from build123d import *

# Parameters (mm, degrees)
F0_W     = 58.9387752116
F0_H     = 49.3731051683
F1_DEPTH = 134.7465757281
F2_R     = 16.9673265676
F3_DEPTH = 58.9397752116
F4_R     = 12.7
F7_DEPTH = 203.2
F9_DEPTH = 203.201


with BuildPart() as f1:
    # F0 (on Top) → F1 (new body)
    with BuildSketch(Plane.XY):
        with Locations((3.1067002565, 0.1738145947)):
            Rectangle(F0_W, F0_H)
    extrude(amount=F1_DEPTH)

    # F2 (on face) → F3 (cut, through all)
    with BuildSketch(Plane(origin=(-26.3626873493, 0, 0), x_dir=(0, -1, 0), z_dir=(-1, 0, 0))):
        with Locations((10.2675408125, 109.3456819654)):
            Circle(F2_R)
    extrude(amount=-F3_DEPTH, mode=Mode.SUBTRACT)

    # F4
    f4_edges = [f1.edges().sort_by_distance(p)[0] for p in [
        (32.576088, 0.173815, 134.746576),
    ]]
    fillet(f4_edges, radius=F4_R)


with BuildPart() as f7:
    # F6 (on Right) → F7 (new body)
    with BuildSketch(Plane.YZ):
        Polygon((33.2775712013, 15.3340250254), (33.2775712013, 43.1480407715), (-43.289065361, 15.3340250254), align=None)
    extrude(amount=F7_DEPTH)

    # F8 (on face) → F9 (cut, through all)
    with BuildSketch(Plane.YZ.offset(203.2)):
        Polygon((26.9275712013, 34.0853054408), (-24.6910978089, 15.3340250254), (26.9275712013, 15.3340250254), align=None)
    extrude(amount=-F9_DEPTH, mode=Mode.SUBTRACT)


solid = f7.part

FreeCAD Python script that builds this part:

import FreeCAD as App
import Part
import Sketcher
from FreeCAD import Vector
Q = App.Units.Quantity


def edges_at(feature, points):
    """Names of the edges that pass closest to the given points."""
    edges = feature.Shape.Edges
    near = lambda p: min(range(len(edges)), key=lambda i: edges[i].distToShape(Part.Vertex(*p))[0])
    return sorted({f"Edge{near(p) + 1}" for p in points})


def add_polygon(sketch, points):
    """Adds a closed chain of lines whose ends are joined by coincident constraints."""
    first, n = sketch.GeometryCount, len(points)
    for a, b in zip(points, points[1:] + points[:1]):
        sketch.addGeometry(Part.LineSegment(App.Vector(*a, 0), App.Vector(*b, 0)), False)
    for i in range(n):
        sketch.addConstraint(Sketcher.Constraint("Coincident", first + i, 2, first + (i + 1) % n, 1))

doc = App.newDocument("Part")
body = doc.addObject("PartDesign::Body", "Body")

# Sketch on XY plane
sketch1 = doc.addObject("Sketcher::SketchObject", "Sketch")
body.addObject(sketch1)
sketch1.AttachmentSupport = (doc.XY_Plane, [""])
sketch1.MapMode = "FlatFace"
add_polygon(sketch1, [(-26.362687, 24.860367), (-26.362687, -24.512738), (32.576088, -24.512738), (32.576088, 24.860367)])  # lines 0-3
sketch1.addConstraint([
    Sketcher.Constraint("Vertical", 0),
    Sketcher.Constraint("Horizontal", 1),
    Sketcher.Constraint("Vertical", 2),
    Sketcher.Constraint("Horizontal", 3),
    Sketcher.Constraint("DistanceX", 1, 1, 1, 2, 58.938775),
    Sketcher.Constraint("DistanceY", 0, 2, 0, 1, 49.373105),
    Sketcher.Constraint("DistanceX", 0, 2, -1, 1, 26.362687),
    Sketcher.Constraint("DistanceY", 0, 2, -1, 1, 24.512738),
])
pad1 = doc.addObject("PartDesign::Pad", "Pad")
body.addObject(pad1)
pad1.Profile = sketch1
pad1.Length = 134.746576

# Sketch on YZ plane
sketch2 = doc.addObject("Sketcher::SketchObject", "Sketch001")
body.addObject(sketch2)
sketch2.AttachmentSupport = (doc.YZ_Plane, [""])
sketch2.MapMode = "FlatFace"
sketch2.AttachmentOffset = App.Placement(Vector(0, 0, -26.362687), App.Rotation())
sketch2.addGeometry(Part.Circle(Vector(-10.267541, 109.345682, 0), Vector(0, 0, 1), 16.967327), False)
sketch2.addConstraint([
    Sketcher.Constraint("Diameter", 0, 33.934653),
    Sketcher.Constraint("DistanceX", 0, 3, -1, 1, 10.267541),
    Sketcher.Constraint("DistanceY", -1, 1, 0, 3, 109.345682),
])
pocket1 = doc.addObject("PartDesign::Pocket", "Pocket")
body.addObject(pocket1)
pocket1.Profile = sketch2
pocket1.Type = "ThroughAll"
pocket1.Reversed = True
doc.recompute()

fillet = doc.addObject("PartDesign::Fillet", "Fillet")
body.addObject(fillet)
fillet.Base = (pocket1, edges_at(pocket1, [(32.576, 0.174, 134.747)]))
fillet.Radius = Q("0.5 in")
body2 = doc.addObject("PartDesign::Body", "Body001")

# Sketch on YZ plane
sketch3 = doc.addObject("Sketcher::SketchObject", "Sketch002")
body2.addObject(sketch3)
sketch3.AttachmentSupport = (doc.getObject("YZ_Plane001"), [""])
sketch3.MapMode = "FlatFace"
add_polygon(sketch3, [(33.277571, 15.334025), (33.277571, 43.148041), (-43.289065, 15.334025)])  # lines 0-2
sketch3.addConstraint([
    Sketcher.Constraint("Vertical", 0),
    Sketcher.Constraint("Horizontal", 2),
    Sketcher.Constraint("DistanceX", 2, 1, 2, 2, 76.566637),
    Sketcher.Constraint("DistanceY", 0, 1, 0, 2, 27.814016),
    Sketcher.Constraint("DistanceX", -1, 1, 0, 2, 33.277571),
    Sketcher.Constraint("DistanceY", -1, 1, 0, 2, 43.148041),
])
pad2 = doc.addObject("PartDesign::Pad", "Pad001")
body2.addObject(pad2)
pad2.Profile = sketch3
pad2.Length = Q("8 in")

# Sketch on YZ plane
sketch4 = doc.addObject("Sketcher::SketchObject", "Sketch003")
body2.addObject(sketch4)
sketch4.AttachmentSupport = (doc.getObject("YZ_Plane001"), [""])
sketch4.MapMode = "FlatFace"
sketch4.AttachmentOffset = App.Placement(Vector(0, 0, 8 * 25.4), App.Rotation())
add_polygon(sketch4, [(26.927571, 34.085305), (-24.691098, 15.334025), (26.927571, 15.334025)])  # lines 0-2
sketch4.addConstraint([
    Sketcher.Constraint("Horizontal", 1),
    Sketcher.Constraint("Vertical", 2),
    Sketcher.Constraint("DistanceX", 1, 1, 1, 2, 51.618669),
    Sketcher.Constraint("DistanceY", 2, 1, 2, 2, 18.75128),
    Sketcher.Constraint("DistanceX", -1, 1, 1, 2, 26.927571),
    Sketcher.Constraint("DistanceY", -1, 1, 0, 2, 15.334025),
])
pocket2 = doc.addObject("PartDesign::Pocket", "Pocket001")
body2.addObject(pocket2)
pocket2.Profile = sketch4
pocket2.Type = "ThroughAll"
body.Visibility = False

doc.recompute()
